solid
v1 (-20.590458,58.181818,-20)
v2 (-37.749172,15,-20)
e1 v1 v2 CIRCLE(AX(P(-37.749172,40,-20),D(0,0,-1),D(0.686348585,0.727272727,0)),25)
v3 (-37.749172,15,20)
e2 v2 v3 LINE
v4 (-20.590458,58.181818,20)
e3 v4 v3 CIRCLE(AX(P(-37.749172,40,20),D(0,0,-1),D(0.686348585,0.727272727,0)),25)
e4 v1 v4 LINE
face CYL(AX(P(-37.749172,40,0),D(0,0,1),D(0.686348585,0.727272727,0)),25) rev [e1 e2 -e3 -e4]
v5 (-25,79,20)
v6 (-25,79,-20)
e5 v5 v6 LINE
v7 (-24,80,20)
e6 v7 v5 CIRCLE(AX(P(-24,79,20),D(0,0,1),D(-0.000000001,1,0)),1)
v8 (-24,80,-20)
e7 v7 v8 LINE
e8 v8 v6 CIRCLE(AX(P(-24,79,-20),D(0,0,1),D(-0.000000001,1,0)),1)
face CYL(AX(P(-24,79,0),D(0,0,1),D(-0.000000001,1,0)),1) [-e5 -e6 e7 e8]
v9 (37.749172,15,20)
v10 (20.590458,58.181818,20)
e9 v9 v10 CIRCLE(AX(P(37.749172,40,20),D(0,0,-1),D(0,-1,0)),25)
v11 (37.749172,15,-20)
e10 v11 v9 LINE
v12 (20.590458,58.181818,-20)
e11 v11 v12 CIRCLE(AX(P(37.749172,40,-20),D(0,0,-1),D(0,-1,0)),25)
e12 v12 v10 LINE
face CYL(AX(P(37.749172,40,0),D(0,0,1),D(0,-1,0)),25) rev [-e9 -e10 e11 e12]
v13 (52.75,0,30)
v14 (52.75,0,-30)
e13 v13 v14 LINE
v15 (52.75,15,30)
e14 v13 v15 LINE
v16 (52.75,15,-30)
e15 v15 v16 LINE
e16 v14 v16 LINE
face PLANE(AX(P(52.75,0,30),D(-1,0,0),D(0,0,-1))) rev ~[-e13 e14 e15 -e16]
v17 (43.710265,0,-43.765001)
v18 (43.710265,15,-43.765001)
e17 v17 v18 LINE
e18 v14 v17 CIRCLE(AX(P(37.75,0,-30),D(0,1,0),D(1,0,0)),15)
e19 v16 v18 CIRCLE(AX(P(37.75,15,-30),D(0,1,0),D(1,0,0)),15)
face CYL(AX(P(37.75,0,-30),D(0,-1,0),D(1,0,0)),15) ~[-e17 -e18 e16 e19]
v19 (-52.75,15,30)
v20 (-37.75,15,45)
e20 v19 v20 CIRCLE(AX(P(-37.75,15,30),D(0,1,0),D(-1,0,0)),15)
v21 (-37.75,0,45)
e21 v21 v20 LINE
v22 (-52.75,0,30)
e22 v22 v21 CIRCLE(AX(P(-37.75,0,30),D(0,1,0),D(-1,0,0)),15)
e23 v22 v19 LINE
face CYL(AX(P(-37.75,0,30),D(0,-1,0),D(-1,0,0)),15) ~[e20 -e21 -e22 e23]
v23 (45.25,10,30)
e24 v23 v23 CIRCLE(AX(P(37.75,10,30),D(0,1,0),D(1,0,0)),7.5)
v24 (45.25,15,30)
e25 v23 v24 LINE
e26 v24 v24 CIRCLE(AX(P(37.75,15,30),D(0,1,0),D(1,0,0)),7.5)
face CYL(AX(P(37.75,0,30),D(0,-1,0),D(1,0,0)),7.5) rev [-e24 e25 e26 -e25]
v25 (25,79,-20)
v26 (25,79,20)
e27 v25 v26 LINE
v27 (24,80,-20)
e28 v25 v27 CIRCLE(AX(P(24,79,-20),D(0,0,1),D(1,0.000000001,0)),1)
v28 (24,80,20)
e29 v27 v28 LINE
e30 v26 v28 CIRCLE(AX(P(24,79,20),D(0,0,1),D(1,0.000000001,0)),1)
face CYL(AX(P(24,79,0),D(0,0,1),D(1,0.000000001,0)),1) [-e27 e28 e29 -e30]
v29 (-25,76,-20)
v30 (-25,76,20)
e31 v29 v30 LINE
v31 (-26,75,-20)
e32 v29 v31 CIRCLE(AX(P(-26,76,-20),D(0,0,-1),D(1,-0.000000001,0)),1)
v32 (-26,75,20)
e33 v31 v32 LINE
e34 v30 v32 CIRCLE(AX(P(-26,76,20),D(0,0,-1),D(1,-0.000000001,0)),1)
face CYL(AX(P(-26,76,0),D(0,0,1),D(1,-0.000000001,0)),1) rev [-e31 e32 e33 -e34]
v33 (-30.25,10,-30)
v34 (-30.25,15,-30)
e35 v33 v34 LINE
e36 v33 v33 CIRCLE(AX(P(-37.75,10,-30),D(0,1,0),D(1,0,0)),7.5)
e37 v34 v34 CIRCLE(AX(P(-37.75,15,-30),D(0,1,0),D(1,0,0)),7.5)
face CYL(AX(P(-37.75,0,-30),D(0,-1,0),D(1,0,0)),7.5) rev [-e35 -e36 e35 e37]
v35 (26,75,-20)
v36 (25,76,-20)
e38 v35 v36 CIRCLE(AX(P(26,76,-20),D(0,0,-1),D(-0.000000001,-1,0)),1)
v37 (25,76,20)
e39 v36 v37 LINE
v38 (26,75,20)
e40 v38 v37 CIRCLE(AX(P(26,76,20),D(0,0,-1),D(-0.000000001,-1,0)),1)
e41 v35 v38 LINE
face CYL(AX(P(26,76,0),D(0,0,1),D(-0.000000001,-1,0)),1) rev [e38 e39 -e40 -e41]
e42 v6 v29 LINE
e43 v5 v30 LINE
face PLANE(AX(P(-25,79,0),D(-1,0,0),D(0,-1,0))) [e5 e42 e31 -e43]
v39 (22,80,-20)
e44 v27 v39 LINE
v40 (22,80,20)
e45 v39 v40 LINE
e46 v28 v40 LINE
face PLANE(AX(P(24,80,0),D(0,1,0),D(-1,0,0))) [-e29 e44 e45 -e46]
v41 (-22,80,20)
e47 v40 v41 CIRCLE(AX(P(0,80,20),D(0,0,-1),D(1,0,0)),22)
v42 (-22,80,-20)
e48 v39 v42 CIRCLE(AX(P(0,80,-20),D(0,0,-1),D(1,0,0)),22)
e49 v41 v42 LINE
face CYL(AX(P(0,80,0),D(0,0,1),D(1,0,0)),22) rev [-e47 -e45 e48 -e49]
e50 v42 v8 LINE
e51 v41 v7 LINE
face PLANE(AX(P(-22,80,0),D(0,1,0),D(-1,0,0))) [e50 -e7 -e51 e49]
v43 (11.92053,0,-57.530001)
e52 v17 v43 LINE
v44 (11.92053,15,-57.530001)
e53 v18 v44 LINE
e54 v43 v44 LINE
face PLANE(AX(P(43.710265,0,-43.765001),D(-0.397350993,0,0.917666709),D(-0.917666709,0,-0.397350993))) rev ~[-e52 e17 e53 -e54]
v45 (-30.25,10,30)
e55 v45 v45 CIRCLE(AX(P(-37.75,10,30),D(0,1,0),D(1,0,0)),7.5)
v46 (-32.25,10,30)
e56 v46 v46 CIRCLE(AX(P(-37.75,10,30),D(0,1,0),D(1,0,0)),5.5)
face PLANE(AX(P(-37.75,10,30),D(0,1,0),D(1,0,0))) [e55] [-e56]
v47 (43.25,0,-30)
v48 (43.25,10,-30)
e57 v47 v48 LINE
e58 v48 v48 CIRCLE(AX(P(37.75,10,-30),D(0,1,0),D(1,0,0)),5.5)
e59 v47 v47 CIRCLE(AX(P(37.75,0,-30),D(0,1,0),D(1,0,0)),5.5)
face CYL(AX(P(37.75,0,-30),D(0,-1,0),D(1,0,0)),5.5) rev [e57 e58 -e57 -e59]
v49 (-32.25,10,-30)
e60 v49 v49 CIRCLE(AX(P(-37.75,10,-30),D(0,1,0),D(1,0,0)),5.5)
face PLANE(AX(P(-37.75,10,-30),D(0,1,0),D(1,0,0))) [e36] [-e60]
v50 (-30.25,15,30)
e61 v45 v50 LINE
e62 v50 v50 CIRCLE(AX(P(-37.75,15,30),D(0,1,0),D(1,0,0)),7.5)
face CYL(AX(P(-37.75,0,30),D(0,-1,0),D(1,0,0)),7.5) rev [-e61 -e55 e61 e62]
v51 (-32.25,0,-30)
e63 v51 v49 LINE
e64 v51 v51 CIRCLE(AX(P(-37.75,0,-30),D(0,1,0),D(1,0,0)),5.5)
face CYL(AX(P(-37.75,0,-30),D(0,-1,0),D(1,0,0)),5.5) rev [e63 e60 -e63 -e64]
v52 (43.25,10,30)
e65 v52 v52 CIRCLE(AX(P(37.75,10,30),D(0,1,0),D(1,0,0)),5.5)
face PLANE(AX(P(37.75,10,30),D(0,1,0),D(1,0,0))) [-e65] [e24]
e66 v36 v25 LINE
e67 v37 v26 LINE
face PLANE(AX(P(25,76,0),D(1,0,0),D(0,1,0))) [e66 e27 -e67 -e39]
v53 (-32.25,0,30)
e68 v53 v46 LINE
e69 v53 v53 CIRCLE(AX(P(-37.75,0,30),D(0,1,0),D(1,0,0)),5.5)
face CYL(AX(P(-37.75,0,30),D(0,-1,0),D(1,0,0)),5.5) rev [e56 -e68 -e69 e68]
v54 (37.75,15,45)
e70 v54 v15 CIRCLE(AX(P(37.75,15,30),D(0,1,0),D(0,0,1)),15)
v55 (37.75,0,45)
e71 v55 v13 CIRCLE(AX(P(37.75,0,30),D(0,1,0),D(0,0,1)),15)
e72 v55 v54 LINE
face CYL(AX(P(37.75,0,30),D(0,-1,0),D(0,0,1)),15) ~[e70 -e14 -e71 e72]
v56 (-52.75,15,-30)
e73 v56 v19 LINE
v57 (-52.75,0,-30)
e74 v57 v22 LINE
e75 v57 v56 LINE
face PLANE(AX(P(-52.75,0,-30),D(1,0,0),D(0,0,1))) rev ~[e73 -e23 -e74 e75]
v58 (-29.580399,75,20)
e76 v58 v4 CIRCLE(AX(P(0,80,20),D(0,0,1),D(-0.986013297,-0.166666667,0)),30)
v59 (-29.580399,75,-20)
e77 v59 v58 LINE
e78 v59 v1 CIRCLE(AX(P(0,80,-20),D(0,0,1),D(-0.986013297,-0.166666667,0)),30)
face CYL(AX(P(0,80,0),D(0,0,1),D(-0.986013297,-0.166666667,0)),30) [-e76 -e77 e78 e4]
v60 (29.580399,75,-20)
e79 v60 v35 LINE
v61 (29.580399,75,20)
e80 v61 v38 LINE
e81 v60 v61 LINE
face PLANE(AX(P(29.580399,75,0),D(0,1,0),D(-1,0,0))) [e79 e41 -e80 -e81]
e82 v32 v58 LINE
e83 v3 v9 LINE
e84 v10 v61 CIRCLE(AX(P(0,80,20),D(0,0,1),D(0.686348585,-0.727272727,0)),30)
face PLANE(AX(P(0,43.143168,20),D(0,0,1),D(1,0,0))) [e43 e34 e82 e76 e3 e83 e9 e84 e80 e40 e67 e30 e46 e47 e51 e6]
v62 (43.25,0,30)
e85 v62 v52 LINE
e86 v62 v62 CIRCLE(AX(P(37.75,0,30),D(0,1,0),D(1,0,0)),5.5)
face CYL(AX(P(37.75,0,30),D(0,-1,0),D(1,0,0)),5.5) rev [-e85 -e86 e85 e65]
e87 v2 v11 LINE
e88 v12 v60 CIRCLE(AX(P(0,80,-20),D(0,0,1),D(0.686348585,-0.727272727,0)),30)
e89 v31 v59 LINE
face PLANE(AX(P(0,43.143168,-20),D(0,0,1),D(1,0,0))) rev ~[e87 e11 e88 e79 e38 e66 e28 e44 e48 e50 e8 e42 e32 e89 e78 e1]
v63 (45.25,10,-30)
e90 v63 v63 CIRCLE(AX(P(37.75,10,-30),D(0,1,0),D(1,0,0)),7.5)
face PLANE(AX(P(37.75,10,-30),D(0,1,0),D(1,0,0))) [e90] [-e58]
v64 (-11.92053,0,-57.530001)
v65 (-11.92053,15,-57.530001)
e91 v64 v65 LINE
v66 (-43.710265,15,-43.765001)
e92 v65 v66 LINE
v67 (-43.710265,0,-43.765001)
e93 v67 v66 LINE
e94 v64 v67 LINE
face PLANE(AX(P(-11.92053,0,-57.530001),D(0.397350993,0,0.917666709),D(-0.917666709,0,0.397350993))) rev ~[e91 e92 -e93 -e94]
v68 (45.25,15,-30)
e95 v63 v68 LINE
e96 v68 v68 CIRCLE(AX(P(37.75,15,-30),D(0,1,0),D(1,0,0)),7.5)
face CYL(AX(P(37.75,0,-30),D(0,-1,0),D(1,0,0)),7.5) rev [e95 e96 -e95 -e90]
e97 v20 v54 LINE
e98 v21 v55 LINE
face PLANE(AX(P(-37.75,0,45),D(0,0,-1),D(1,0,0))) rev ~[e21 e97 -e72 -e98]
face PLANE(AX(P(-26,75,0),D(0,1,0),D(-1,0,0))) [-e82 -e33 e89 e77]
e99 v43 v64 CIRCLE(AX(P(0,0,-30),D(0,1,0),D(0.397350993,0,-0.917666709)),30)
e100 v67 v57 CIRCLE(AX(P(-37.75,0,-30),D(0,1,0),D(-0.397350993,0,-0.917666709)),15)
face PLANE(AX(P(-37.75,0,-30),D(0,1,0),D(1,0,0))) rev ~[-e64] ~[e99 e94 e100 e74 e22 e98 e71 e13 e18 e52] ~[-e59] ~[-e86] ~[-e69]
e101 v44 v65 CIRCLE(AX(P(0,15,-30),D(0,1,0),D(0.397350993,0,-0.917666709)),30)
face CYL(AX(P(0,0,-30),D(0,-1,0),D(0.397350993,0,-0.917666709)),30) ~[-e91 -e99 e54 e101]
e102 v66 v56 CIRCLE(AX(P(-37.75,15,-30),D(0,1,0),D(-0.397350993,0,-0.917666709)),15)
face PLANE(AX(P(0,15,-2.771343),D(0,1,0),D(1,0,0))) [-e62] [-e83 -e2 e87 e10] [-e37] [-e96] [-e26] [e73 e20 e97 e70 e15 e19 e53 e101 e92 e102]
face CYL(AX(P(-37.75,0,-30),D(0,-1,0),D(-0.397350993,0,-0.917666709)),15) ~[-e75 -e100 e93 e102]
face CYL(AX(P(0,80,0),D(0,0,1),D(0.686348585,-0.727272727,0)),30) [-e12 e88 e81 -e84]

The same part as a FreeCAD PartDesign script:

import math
import FreeCAD as App
import Part
import Sketcher

V = App.Vector

doc = App.newDocument("Part")
body = doc.addObject("PartDesign::Body", "Body")

sketch1 = doc.addObject("Sketcher::SketchObject", "Sketch")
body.addObject(sketch1)
sketch1.AttachmentSupport = (doc.XZ_Plane, [""])
sketch1.MapMode = "FlatFace"
sketch1.addGeometry(Part.LineSegment(V(53, 30, 0), V(53, -30, 0)), False)
sketch1.addGeometry(Part.ArcOfCircle(Part.Circle(V(38, -30, 0), V(0, 0, 1), 15), math.radians(-67), math.radians(0)), False)
sketch1.addGeometry(Part.LineSegment(V(44, -44, 0), V(12, -58, 0)), False)
sketch1.addGeometry(Part.ArcOfCircle(Part.Circle(V(0, -30, 0), V(0, 0, 1), 30), math.radians(-113), math.radians(-67)), False)
sketch1.addGeometry(Part.LineSegment(V(-12, -58, 0), V(-44, -44, 0)), False)
sketch1.addGeometry(Part.ArcOfCircle(Part.Circle(V(-38, -30, 0), V(0, 0, 1), 15), math.radians(-180), math.radians(-113)), False)
sketch1.addGeometry(Part.LineSegment(V(-53, -30, 0), V(-53, 30, 0)), False)
sketch1.addGeometry(Part.ArcOfCircle(Part.Circle(V(-38, 30, 0), V(0, 0, 1), 15), math.radians(90), math.radians(180)), False)
sketch1.addGeometry(Part.LineSegment(V(-38, 45, 0), V(38, 45, 0)), False)
sketch1.addGeometry(Part.ArcOfCircle(Part.Circle(V(38, 30, 0), V(0, 0, 1), 15), math.radians(0), math.radians(90)), False)
sketch1.addConstraint(Sketcher.Constraint("Tangent", 0, 2, 1, 2))
sketch1.addConstraint(Sketcher.Constraint("Tangent", 1, 1, 2, 1))
sketch1.addConstraint(Sketcher.Constraint("Tangent", 2, 2, 3, 2))
sketch1.addConstraint(Sketcher.Constraint("Tangent", 3, 1, 4, 1))
sketch1.addConstraint(Sketcher.Constraint("Tangent", 4, 2, 5, 2))
sketch1.addConstraint(Sketcher.Constraint("Tangent", 5, 1, 6, 1))
sketch1.addConstraint(Sketcher.Constraint("Tangent", 6, 2, 7, 2))
sketch1.addConstraint(Sketcher.Constraint("Tangent", 7, 1, 8, 1))
sketch1.addConstraint(Sketcher.Constraint("Tangent", 8, 2, 9, 2))
sketch1.addConstraint(Sketcher.Constraint("Tangent", 9, 1, 0, 1))
sketch1.addConstraint(Sketcher.Constraint("Vertical", 0))
sketch1.addConstraint(Sketcher.Constraint("Vertical", 6))
sketch1.addConstraint(Sketcher.Constraint("Horizontal", 8))
sketch1.addConstraint(Sketcher.Constraint("Equal", 1, 5))
sketch1.addConstraint(Sketcher.Constraint("Equal", 5, 7))
sketch1.addConstraint(Sketcher.Constraint("Equal", 7, 9))
sketch1.addConstraint(Sketcher.Constraint("Symmetric", 1, 3, 7, 3, -1, 1))
sketch1.addConstraint(Sketcher.Constraint("Symmetric", 2, 2, 3, 1, -2))
sketch1.addConstraint(Sketcher.Constraint("Horizontal", 1, 3, 3, 3))
sketch1.addConstraint(Sketcher.Constraint("Radius", 1, 15.0))
sketch1.addConstraint(Sketcher.Constraint("Radius", 3, 30.0))
sketch1.addConstraint(Sketcher.Constraint("DistanceY", 0, 2, 0, 1, 60.0))
sketch1.addConstraint(Sketcher.Constraint("DistanceX", 8, 1, 8, 2, 75.5))
pad1 = doc.addObject("PartDesign::Pad", "Pad")
body.addObject(pad1)
pad1.Profile = sketch1
pad1.Length = 15
pad1.Reversed = True

sketch2 = doc.addObject("Sketcher::SketchObject", "Sketch001")
body.addObject(sketch2)
sketch2.AttachmentSupport = (doc.XZ_Plane, [""])
sketch2.MapMode = "FlatFace"
sketch2.addGeometry(Part.Circle(V(-38, -30, 0), V(0, 0, 1), 8), False)
sketch2.addGeometry(Part.Circle(V(38, -30, 0), V(0, 0, 1), 8), False)
sketch2.addGeometry(Part.Circle(V(38, 30, 0), V(0, 0, 1), 8), False)
sketch2.addGeometry(Part.Circle(V(-38, 30, 0), V(0, 0, 1), 8), False)
sketch2.addConstraint(Sketcher.Constraint("Equal", 0, 1))
sketch2.addConstraint(Sketcher.Constraint("Equal", 1, 2))
sketch2.addConstraint(Sketcher.Constraint("Equal", 2, 3))
sketch2.addConstraint(Sketcher.Constraint("Symmetric", 0, 3, 2, 3, -1, 1))
sketch2.addConstraint(Sketcher.Constraint("Symmetric", 1, 3, 3, 3, -1, 1))
sketch2.addConstraint(Sketcher.Constraint("Symmetric", 0, 3, 1, 3, -2))
sketch2.addConstraint(Sketcher.Constraint("Diameter", 0, 15.0))
sketch2.addConstraint(Sketcher.Constraint("DistanceY", 0, 3, -1, 1, 30.0))
sketch2.addConstraint(Sketcher.Constraint("DistanceX", 0, 3, 1, 3, 75.5))
pocket1 = doc.addObject("PartDesign::Pocket", "Pocket")
body.addObject(pocket1)
pocket1.Profile = sketch2
pocket1.Length = 15

sketch3 = doc.addObject("Sketcher::SketchObject", "Sketch002")
body.addObject(sketch3)
sketch3.AttachmentSupport = (doc.XZ_Plane, [""])
sketch3.MapMode = "FlatFace"
sketch3.addGeometry(Part.Circle(V(-38, -30, 0), V(0, 0, 1), 8), False)
sketch3.addGeometry(Part.Circle(V(-38, -30, 0), V(0, 0, 1), 6), False)
sketch3.addGeometry(Part.Circle(V(38, -30, 0), V(0, 0, 1), 8), False)
sketch3.addGeometry(Part.Circle(V(38, -30, 0), V(0, 0, 1), 6), False)
sketch3.addGeometry(Part.Circle(V(38, 30, 0), V(0, 0, 1), 8), False)
sketch3.addGeometry(Part.Circle(V(38, 30, 0), V(0, 0, 1), 6), False)
sketch3.addGeometry(Part.Circle(V(-38, 30, 0), V(0, 0, 1), 8), False)
sketch3.addGeometry(Part.Circle(V(-38, 30, 0), V(0, 0, 1), 6), False)
sketch3.addConstraint(Sketcher.Constraint("Coincident", 1, 3, 0, 3))
sketch3.addConstraint(Sketcher.Constraint("Coincident", 3, 3, 2, 3))
sketch3.addConstraint(Sketcher.Constraint("Coincident", 5, 3, 4, 3))
sketch3.addConstraint(Sketcher.Constraint("Coincident", 7, 3, 6, 3))
sketch3.addConstraint(Sketcher.Constraint("Equal", 0, 2))
sketch3.addConstraint(Sketcher.Constraint("Equal", 1, 3))
sketch3.addConstraint(Sketcher.Constraint("Equal", 2, 4))
sketch3.addConstraint(Sketcher.Constraint("Equal", 3, 5))
sketch3.addConstraint(Sketcher.Constraint("Equal", 4, 6))
sketch3.addConstraint(Sketcher.Constraint("Equal", 5, 7))
sketch3.addConstraint(Sketcher.Constraint("Symmetric", 0, 3, 4, 3, -1, 1))
sketch3.addConstraint(Sketcher.Constraint("Symmetric", 2, 3, 6, 3, -1, 1))
sketch3.addConstraint(Sketcher.Constraint("Symmetric", 0, 3, 2, 3, -2))
sketch3.addConstraint(Sketcher.Constraint("Diameter", 0, 15.0))
sketch3.addConstraint(Sketcher.Constraint("Diameter", 1, 11.0))
sketch3.addConstraint(Sketcher.Constraint("DistanceY", 0, 3, -1, 1, 30.0))
sketch3.addConstraint(Sketcher.Constraint("DistanceX", 0, 3, 2, 3, 75.5))
pad2 = doc.addObject("PartDesign::Pad", "Pad001")
body.addObject(pad2)
pad2.Profile = sketch3
pad2.Length = 10
pad2.Reversed = True

sketch4 = doc.addObject("Sketcher::SketchObject", "Sketch003")
body.addObject(sketch4)
sketch4.AttachmentSupport = (doc.XY_Plane, [""])
sketch4.MapMode = "FlatFace"
sketch4.addGeometry(Part.LineSegment(V(-25, 79, 0), V(-25, 76, 0)), False)
sketch4.addGeometry(Part.ArcOfCircle(Part.Circle(V(-26, 76, 0), V(0, 0, 1), 1), math.radians(-90), math.radians(0)), False)
sketch4.addGeometry(Part.LineSegment(V(-26, 75, 0), V(-29.6, 75, 0)), False)
sketch4.addGeometry(Part.ArcOfCircle(Part.Circle(V(0, 80, 0), V(0, 0, 1), 30), math.radians(-170), math.radians(-133)), False)
sketch4.addGeometry(Part.ArcOfCircle(Part.Circle(V(-37.7, 40, 0), V(0, 0, 1), 25), math.radians(-90), math.radians(47)), False)
sketch4.addGeometry(Part.LineSegment(V(-37.7, 15, 0), V(37.7, 15, 0)), False)
sketch4.addGeometry(Part.ArcOfCircle(Part.Circle(V(37.7, 40, 0), V(0, 0, 1), 25), math.radians(133), math.radians(270)), False)
sketch4.addGeometry(Part.ArcOfCircle(Part.Circle(V(0, 80, 0), V(0, 0, 1), 30), math.radians(-47), math.radians(-10)), False)
sketch4.addGeometry(Part.LineSegment(V(29.6, 75, 0), V(26, 75, 0)), False)
sketch4.addGeometry(Part.ArcOfCircle(Part.Circle(V(26, 76, 0), V(0, 0, 1), 1), math.radians(-180), math.radians(-90)), False)
sketch4.addGeometry(Part.LineSegment(V(25, 76, 0), V(25, 79, 0)), False)
sketch4.addGeometry(Part.ArcOfCircle(Part.Circle(V(24, 79, 0), V(0, 0, 1), 1), math.radians(0), math.radians(90)), False)
sketch4.addGeometry(Part.LineSegment(V(24, 80, 0), V(22, 80, 0)), False)
sketch4.addGeometry(Part.ArcOfCircle(Part.Circle(V(0, 80, 0), V(0, 0, 1), 22), math.radians(180), math.radians(360)), False)
sketch4.addGeometry(Part.LineSegment(V(-22, 80, 0), V(-24, 80, 0)), False)
sketch4.addGeometry(Part.ArcOfCircle(Part.Circle(V(-24, 79, 0), V(0, 0, 1), 1), math.radians(90), math.radians(180)), False)
sketch4.addConstraint(Sketcher.Constraint("Tangent", 0, 2, 1, 2))
sketch4.addConstraint(Sketcher.Constraint("Tangent", 1, 1, 2, 1))
sketch4.addConstraint(Sketcher.Constraint("Coincident", 2, 2, 3, 1))
sketch4.addConstraint(Sketcher.Constraint("Tangent", 3, 2, 4, 2))
sketch4.addConstraint(Sketcher.Constraint("Tangent", 4, 1, 5, 1))
sketch4.addConstraint(Sketcher.Constraint("Tangent", 5, 2, 6, 2))
sketch4.addConstraint(Sketcher.Constraint("Tangent", 6, 1, 7, 1))
sketch4.addConstraint(Sketcher.Constraint("Coincident", 7, 2, 8, 1))
sketch4.addConstraint(Sketcher.Constraint("Tangent", 8, 2, 9, 2))
sketch4.addConstraint(Sketcher.Constraint("Tangent", 9, 1, 10, 1))
sketch4.addConstraint(Sketcher.Constraint("Tangent", 10, 2, 11, 1))
sketch4.addConstraint(Sketcher.Constraint("Tangent", 11, 2, 12, 1))
sketch4.addConstraint(Sketcher.Constraint("Coincident", 12, 2, 13, 2))
sketch4.addConstraint(Sketcher.Constraint("Coincident", 13, 1, 14, 1))
sketch4.addConstraint(Sketcher.Constraint("Tangent", 14, 2, 15, 1))
sketch4.addConstraint(Sketcher.Constraint("Tangent", 15, 2, 0, 1))
sketch4.addConstraint(Sketcher.Constraint("Vertical", 0))
sketch4.addConstraint(Sketcher.Constraint("Horizontal", 2))
sketch4.addConstraint(Sketcher.Constraint("Horizontal", 5))
sketch4.addConstraint(Sketcher.Constraint("Horizontal", 8))
sketch4.addConstraint(Sketcher.Constraint("Vertical", 10))
sketch4.addConstraint(Sketcher.Constraint("Horizontal", 12))
sketch4.addConstraint(Sketcher.Constraint("Horizontal", 14))
sketch4.addConstraint(Sketcher.Constraint("Coincident", 7, 3, 3, 3))
sketch4.addConstraint(Sketcher.Constraint("Coincident", 13, 3, 3, 3))
sketch4.addConstraint(Sketcher.Constraint("Equal", 4, 6))
sketch4.addConstraint(Sketcher.Constraint("Equal", 3, 7))
sketch4.addConstraint(Sketcher.Constraint("Equal", 1, 9))
sketch4.addConstraint(Sketcher.Constraint("Equal", 9, 11))
sketch4.addConstraint(Sketcher.Constraint("Equal", 11, 15))
sketch4.addConstraint(Sketcher.Constraint("Symmetric", 1, 3, 9, 3, -2))
sketch4.addConstraint(Sketcher.Constraint("Symmetric", 12, 2, 13, 1, -2))
sketch4.addConstraint(Sketcher.Constraint("Horizontal", 13, 3, 11, 2))
sketch4.addConstraint(Sketcher.Constraint("Radius", 1, 1.0))
sketch4.addConstraint(Sketcher.Constraint("Radius", 3, 30.0))
sketch4.addConstraint(Sketcher.Constraint("Radius", 4, 25.0))
sketch4.addConstraint(Sketcher.Constraint("Radius", 13, 22.0))
sketch4.addConstraint(Sketcher.Constraint("DistanceX", 12, 2, 12, 1, 2.0))
sketch4.addConstraint(Sketcher.Constraint("DistanceY", 0, 2, 0, 1, 3.0))
sketch4.addConstraint(Sketcher.Constraint("DistanceY", -1, 1, 1, 3, 76.0))
sketch4.addConstraint(Sketcher.Constraint("DistanceY", -1, 1, 4, 3, 40.0))
pad3 = doc.addObject("PartDesign::Pad", "Pad002")
body.addObject(pad3)
pad3.Profile = sketch4
pad3.Length = 40
pad3.Midplane = True

doc.recompute()
